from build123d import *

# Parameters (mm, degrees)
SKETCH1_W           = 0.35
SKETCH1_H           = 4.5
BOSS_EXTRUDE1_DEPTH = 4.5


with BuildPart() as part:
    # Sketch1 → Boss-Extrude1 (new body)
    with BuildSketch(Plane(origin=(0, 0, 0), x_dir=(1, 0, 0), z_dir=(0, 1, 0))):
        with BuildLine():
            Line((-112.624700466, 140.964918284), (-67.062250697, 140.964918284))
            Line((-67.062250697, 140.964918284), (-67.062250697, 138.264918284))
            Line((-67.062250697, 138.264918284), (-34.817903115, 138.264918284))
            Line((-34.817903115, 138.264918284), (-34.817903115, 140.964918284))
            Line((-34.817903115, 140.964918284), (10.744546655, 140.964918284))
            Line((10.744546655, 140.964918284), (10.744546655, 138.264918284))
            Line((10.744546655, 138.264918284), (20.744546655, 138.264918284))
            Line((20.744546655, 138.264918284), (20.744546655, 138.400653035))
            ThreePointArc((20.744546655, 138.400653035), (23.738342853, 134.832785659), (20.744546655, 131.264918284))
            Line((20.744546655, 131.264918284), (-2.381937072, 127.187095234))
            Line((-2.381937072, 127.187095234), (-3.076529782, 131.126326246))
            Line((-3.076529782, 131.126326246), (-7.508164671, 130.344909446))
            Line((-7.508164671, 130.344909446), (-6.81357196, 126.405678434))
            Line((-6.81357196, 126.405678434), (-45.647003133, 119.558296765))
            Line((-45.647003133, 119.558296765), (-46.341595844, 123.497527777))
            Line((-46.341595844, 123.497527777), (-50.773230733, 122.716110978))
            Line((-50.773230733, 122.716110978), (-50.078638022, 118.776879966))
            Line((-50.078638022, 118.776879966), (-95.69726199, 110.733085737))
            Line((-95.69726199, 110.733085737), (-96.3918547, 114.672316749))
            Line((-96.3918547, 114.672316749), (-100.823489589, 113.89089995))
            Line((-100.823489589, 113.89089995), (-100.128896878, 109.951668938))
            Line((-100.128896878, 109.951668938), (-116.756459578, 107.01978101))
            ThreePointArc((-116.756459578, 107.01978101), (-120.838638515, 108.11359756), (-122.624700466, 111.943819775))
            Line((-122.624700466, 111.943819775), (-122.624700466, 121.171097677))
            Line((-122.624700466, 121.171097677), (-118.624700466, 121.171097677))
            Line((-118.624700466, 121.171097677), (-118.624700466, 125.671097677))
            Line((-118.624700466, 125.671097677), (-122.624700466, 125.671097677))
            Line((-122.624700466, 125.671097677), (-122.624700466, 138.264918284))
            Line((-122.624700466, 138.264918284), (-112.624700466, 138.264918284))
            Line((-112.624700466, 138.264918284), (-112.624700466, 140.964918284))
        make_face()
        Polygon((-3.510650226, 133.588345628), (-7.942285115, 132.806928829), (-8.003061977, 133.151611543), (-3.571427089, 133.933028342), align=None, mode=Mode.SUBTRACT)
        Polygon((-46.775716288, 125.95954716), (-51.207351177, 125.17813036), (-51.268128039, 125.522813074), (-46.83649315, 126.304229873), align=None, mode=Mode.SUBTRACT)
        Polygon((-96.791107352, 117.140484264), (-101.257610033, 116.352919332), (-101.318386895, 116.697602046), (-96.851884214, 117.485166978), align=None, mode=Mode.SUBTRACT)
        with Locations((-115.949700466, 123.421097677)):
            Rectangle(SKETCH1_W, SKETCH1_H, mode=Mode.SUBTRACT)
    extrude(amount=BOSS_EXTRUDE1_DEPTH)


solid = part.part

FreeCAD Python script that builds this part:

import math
import FreeCAD as App
import Part
import Sketcher
from FreeCAD import Vector
Q = App.Units.Quantity

doc = App.newDocument("Part")
body = doc.addObject("PartDesign::Body", "Body")

sketch1 = body.newObject("Sketcher::SketchObject", "Sketch")
sketch1.AttachmentSupport = (doc.getObject("XZ_Plane"), [""])
sketch1.MapMode = "FlatFace"
sketch1.addGeometry(Part.LineSegment(Vector(-67.062251, -140.964918, 0), Vector(-112.6247, -140.964918, 0)), False)
sketch1.addGeometry(Part.LineSegment(Vector(-112.6247, -140.964918, 0), Vector(-112.6247, -138.264918, 0)), False)
sketch1.addGeometry(Part.LineSegment(Vector(-112.6247, -138.264918, 0), Vector(-122.6247, -138.264918, 0)), False)
sketch1.addGeometry(Part.LineSegment(Vector(-122.6247, -138.264918, 0), Vector(-122.6247, -125.671098, 0)), False)
sketch1.addGeometry(Part.LineSegment(Vector(-122.6247, -125.671098, 0), Vector(-118.6247, -125.671098, 0)), False)
sketch1.addGeometry(Part.LineSegment(Vector(-118.6247, -125.671098, 0), Vector(-118.6247, -121.171098, 0)), False)
sketch1.addGeometry(Part.LineSegment(Vector(-118.6247, -121.171098, 0), Vector(-122.6247, -121.171098, 0)), False)
sketch1.addGeometry(Part.LineSegment(Vector(-122.6247, -121.171098, 0), Vector(-122.6247, -111.94382, 0)), False)
sketch1.addGeometry(Part.ArcOfCircle(Part.Circle(Vector(-117.6247, -111.94382, 0), Vector(0, 0, 1), 5), math.radians(80), math.radians(180)), False)
sketch1.addGeometry(Part.LineSegment(Vector(-116.75646, -107.019781, 0), Vector(-100.128897, -109.951669, 0)), False)
sketch1.addGeometry(Part.LineSegment(Vector(-100.128897, -109.951669, 0), Vector(-100.82349, -113.8909, 0)), False)
sketch1.addGeometry(Part.LineSegment(Vector(-100.82349, -113.8909, 0), Vector(-96.391855, -114.672317, 0)), False)
sketch1.addGeometry(Part.LineSegment(Vector(-96.391855, -114.672317, 0), Vector(-95.697262, -110.733086, 0)), False)
sketch1.addGeometry(Part.LineSegment(Vector(-95.697262, -110.733086, 0), Vector(-50.078638, -118.77688, 0)), False)
sketch1.addGeometry(Part.LineSegment(Vector(-50.078638, -118.77688, 0), Vector(-50.773231, -122.716111, 0)), False)
sketch1.addGeometry(Part.LineSegment(Vector(-50.773231, -122.716111, 0), Vector(-46.341596, -123.497528, 0)), False)
sketch1.addGeometry(Part.LineSegment(Vector(-46.341596, -123.497528, 0), Vector(-45.647003, -119.558297, 0)), False)
sketch1.addGeometry(Part.LineSegment(Vector(-45.647003, -119.558297, 0), Vector(-6.813572, -126.405678, 0)), False)
sketch1.addGeometry(Part.LineSegment(Vector(-6.813572, -126.405678, 0), Vector(-7.508165, -130.344909, 0)), False)
sketch1.addGeometry(Part.LineSegment(Vector(-7.508165, -130.344909, 0), Vector(-3.07653, -131.126326, 0)), False)
sketch1.addGeometry(Part.LineSegment(Vector(-3.07653, -131.126326, 0), Vector(-2.381937, -127.187095, 0)), False)
sketch1.addGeometry(Part.LineSegment(Vector(-2.381937, -127.187095, 0), Vector(20.744547, -131.264918, 0)), False)
sketch1.addGeometry(Part.ArcOfCircle(Part.Circle(Vector(20.115435, -134.832786, 0), Vector(0, 0, 1), 3.622907), math.radians(-80), math.radians(80)), False)
sketch1.addGeometry(Part.LineSegment(Vector(20.744547, -138.400653, 0), Vector(20.744547, -138.264918, 0)), False)
sketch1.addGeometry(Part.LineSegment(Vector(20.744547, -138.264918, 0), Vector(10.744547, -138.264918, 0)), False)
sketch1.addGeometry(Part.LineSegment(Vector(10.744547, -138.264918, 0), Vector(10.744547, -140.964918, 0)), False)
sketch1.addGeometry(Part.LineSegment(Vector(10.744547, -140.964918, 0), Vector(-34.817903, -140.964918, 0)), False)
sketch1.addGeometry(Part.LineSegment(Vector(-34.817903, -140.964918, 0), Vector(-34.817903, -138.264918, 0)), False)
sketch1.addGeometry(Part.LineSegment(Vector(-34.817903, -138.264918, 0), Vector(-67.062251, -138.264918, 0)), False)
sketch1.addGeometry(Part.LineSegment(Vector(-67.062251, -138.264918, 0), Vector(-67.062251, -140.964918, 0)), False)
sketch1.addGeometry(Part.LineSegment(Vector(-96.791107, -117.140484, 0), Vector(-101.25761, -116.352919, 0)), False)
sketch1.addGeometry(Part.LineSegment(Vector(-101.25761, -116.352919, 0), Vector(-101.318387, -116.697602, 0)), False)
sketch1.addGeometry(Part.LineSegment(Vector(-101.318387, -116.697602, 0), Vector(-96.851884, -117.485167, 0)), False)
sketch1.addGeometry(Part.LineSegment(Vector(-96.851884, -117.485167, 0), Vector(-96.791107, -117.140484, 0)), False)
sketch1.addGeometry(Part.LineSegment(Vector(-116.1247, -121.171098, 0), Vector(-116.1247, -125.671098, 0)), False)
sketch1.addGeometry(Part.LineSegment(Vector(-116.1247, -125.671098, 0), Vector(-115.7747, -125.671098, 0)), False)
sketch1.addGeometry(Part.LineSegment(Vector(-115.7747, -125.671098, 0), Vector(-115.7747, -121.171098, 0)), False)
sketch1.addGeometry(Part.LineSegment(Vector(-115.7747, -121.171098, 0), Vector(-116.1247, -121.171098, 0)), False)
sketch1.addGeometry(Part.LineSegment(Vector(-46.775716, -125.959547, 0), Vector(-51.207351, -125.17813, 0)), False)
sketch1.addGeometry(Part.LineSegment(Vector(-51.207351, -125.17813, 0), Vector(-51.268128, -125.522813, 0)), False)
sketch1.addGeometry(Part.LineSegment(Vector(-51.268128, -125.522813, 0), Vector(-46.836493, -126.30423, 0)), False)
sketch1.addGeometry(Part.LineSegment(Vector(-46.836493, -126.30423, 0), Vector(-46.775716, -125.959547, 0)), False)
sketch1.addGeometry(Part.LineSegment(Vector(-3.51065, -133.588346, 0), Vector(-7.942285, -132.806929, 0)), False)
sketch1.addGeometry(Part.LineSegment(Vector(-7.942285, -132.806929, 0), Vector(-8.003062, -133.151612, 0)), False)
sketch1.addGeometry(Part.LineSegment(Vector(-8.003062, -133.151612, 0), Vector(-3.571427, -133.933028, 0)), False)
sketch1.addGeometry(Part.LineSegment(Vector(-3.571427, -133.933028, 0), Vector(-3.51065, -133.588346, 0)), False)
sketch1.addConstraint(Sketcher.Constraint("Coincident", 0, 2, 1, 1))
sketch1.addConstraint(Sketcher.Constraint("Coincident", 1, 2, 2, 1))
sketch1.addConstraint(Sketcher.Constraint("Coincident", 2, 2, 3, 1))
sketch1.addConstraint(Sketcher.Constraint("Coincident", 3, 2, 4, 1))
sketch1.addConstraint(Sketcher.Constraint("Coincident", 4, 2, 5, 1))
sketch1.addConstraint(Sketcher.Constraint("Coincident", 5, 2, 6, 1))
sketch1.addConstraint(Sketcher.Constraint("Coincident", 6, 2, 7, 1))
sketch1.addConstraint(Sketcher.Constraint("Tangent", 7, 2, 8, 2))
sketch1.addConstraint(Sketcher.Constraint("Tangent", 8, 1, 9, 1))
sketch1.addConstraint(Sketcher.Constraint("Coincident", 9, 2, 10, 1))
sketch1.addConstraint(Sketcher.Constraint("Coincident", 10, 2, 11, 1))
sketch1.addConstraint(Sketcher.Constraint("Coincident", 11, 2, 12, 1))
sketch1.addConstraint(Sketcher.Constraint("Coincident", 12, 2, 13, 1))
sketch1.addConstraint(Sketcher.Constraint("Coincident", 13, 2, 14, 1))
sketch1.addConstraint(Sketcher.Constraint("Coincident", 14, 2, 15, 1))
sketch1.addConstraint(Sketcher.Constraint("Coincident", 15, 2, 16, 1))
sketch1.addConstraint(Sketcher.Constraint("Coincident", 16, 2, 17, 1))
sketch1.addConstraint(Sketcher.Constraint("Coincident", 17, 2, 18, 1))
sketch1.addConstraint(Sketcher.Constraint("Coincident", 18, 2, 19, 1))
sketch1.addConstraint(Sketcher.Constraint("Coincident", 19, 2, 20, 1))
sketch1.addConstraint(Sketcher.Constraint("Coincident", 20, 2, 21, 1))
sketch1.addConstraint(Sketcher.Constraint("Tangent", 21, 2, 22, 2))
sketch1.addConstraint(Sketcher.Constraint("Coincident", 22, 1, 23, 1))
sketch1.addConstraint(Sketcher.Constraint("Coincident", 23, 2, 24, 1))
sketch1.addConstraint(Sketcher.Constraint("Coincident", 24, 2, 25, 1))
sketch1.addConstraint(Sketcher.Constraint("Coincident", 25, 2, 26, 1))
sketch1.addConstraint(Sketcher.Constraint("Coincident", 26, 2, 27, 1))
sketch1.addConstraint(Sketcher.Constraint("Coincident", 27, 2, 28, 1))
sketch1.addConstraint(Sketcher.Constraint("Coincident", 28, 2, 29, 1))
sketch1.addConstraint(Sketcher.Constraint("Coincident", 29, 2, 0, 1))
sketch1.addConstraint(Sketcher.Constraint("Coincident", 30, 2, 31, 1))
sketch1.addConstraint(Sketcher.Constraint("Coincident", 31, 2, 32, 1))
sketch1.addConstraint(Sketcher.Constraint("Coincident", 32, 2, 33, 1))
sketch1.addConstraint(Sketcher.Constraint("Coincident", 33, 2, 30, 1))
sketch1.addConstraint(Sketcher.Constraint("Coincident", 34, 2, 35, 1))
sketch1.addConstraint(Sketcher.Constraint("Coincident", 35, 2, 36, 1))
sketch1.addConstraint(Sketcher.Constraint("Coincident", 36, 2, 37, 1))
sketch1.addConstraint(Sketcher.Constraint("Coincident", 37, 2, 34, 1))
sketch1.addConstraint(Sketcher.Constraint("Coincident", 38, 2, 39, 1))
sketch1.addConstraint(Sketcher.Constraint("Coincident", 39, 2, 40, 1))
sketch1.addConstraint(Sketcher.Constraint("Coincident", 40, 2, 41, 1))
sketch1.addConstraint(Sketcher.Constraint("Coincident", 41, 2, 38, 1))
sketch1.addConstraint(Sketcher.Constraint("Coincident", 42, 2, 43, 1))
sketch1.addConstraint(Sketcher.Constraint("Coincident", 43, 2, 44, 1))
sketch1.addConstraint(Sketcher.Constraint("Coincident", 44, 2, 45, 1))
sketch1.addConstraint(Sketcher.Constraint("Coincident", 45, 2, 42, 1))
sketch1.addConstraint(Sketcher.Constraint("Horizontal", 0))
sketch1.addConstraint(Sketcher.Constraint("Vertical", 1))
sketch1.addConstraint(Sketcher.Constraint("Horizontal", 2))
sketch1.addConstraint(Sketcher.Constraint("Vertical", 3))
sketch1.addConstraint(Sketcher.Constraint("Horizontal", 4))
sketch1.addConstraint(Sketcher.Constraint("Vertical", 5))
sketch1.addConstraint(Sketcher.Constraint("Horizontal", 6))
sketch1.addConstraint(Sketcher.Constraint("Vertical", 7))
sketch1.addConstraint(Sketcher.Constraint("Vertical", 23))
sketch1.addConstraint(Sketcher.Constraint("Horizontal", 24))
sketch1.addConstraint(Sketcher.Constraint("Vertical", 25))
sketch1.addConstraint(Sketcher.Constraint("Horizontal", 26))
sketch1.addConstraint(Sketcher.Constraint("Vertical", 27))
sketch1.addConstraint(Sketcher.Constraint("Horizontal", 28))
sketch1.addConstraint(Sketcher.Constraint("Vertical", 29))
sketch1.addConstraint(Sketcher.Constraint("Vertical", 34))
sketch1.addConstraint(Sketcher.Constraint("Horizontal", 35))
sketch1.addConstraint(Sketcher.Constraint("Vertical", 36))
sketch1.addConstraint(Sketcher.Constraint("Horizontal", 37))
sketch1.addConstraint(Sketcher.Constraint("Perpendicular", 9, 10))
sketch1.addConstraint(Sketcher.Constraint("Perpendicular", 10, 11))
sketch1.addConstraint(Sketcher.Constraint("Perpendicular", 11, 12))
sketch1.addConstraint(Sketcher.Constraint("Perpendicular", 12, 13))
sketch1.addConstraint(Sketcher.Constraint("Perpendicular", 13, 14))
sketch1.addConstraint(Sketcher.Constraint("Perpendicular", 14, 15))
sketch1.addConstraint(Sketcher.Constraint("Perpendicular", 15, 16))
sketch1.addConstraint(Sketcher.Constraint("Perpendicular", 16, 17))
sketch1.addConstraint(Sketcher.Constraint("Perpendicular", 17, 18))
sketch1.addConstraint(Sketcher.Constraint("Perpendicular", 18, 19))
sketch1.addConstraint(Sketcher.Constraint("Perpendicular", 19, 20))
sketch1.addConstraint(Sketcher.Constraint("Perpendicular", 20, 21))
sketch1.addConstraint(Sketcher.Constraint("Parallel", 21, 30))
sketch1.addConstraint(Sketcher.Constraint("Perpendicular", 30, 31))
sketch1.addConstraint(Sketcher.Constraint("Perpendicular", 31, 32))
sketch1.addConstraint(Sketcher.Constraint("Perpendicular", 32, 33))
sketch1.addConstraint(Sketcher.Constraint("Perpendicular", 33, 38))
sketch1.addConstraint(Sketcher.Constraint("Perpendicular", 38, 39))
sketch1.addConstraint(Sketcher.Constraint("Perpendicular", 39, 40))
sketch1.addConstraint(Sketcher.Constraint("Perpendicular", 40, 41))
sketch1.addConstraint(Sketcher.Constraint("Perpendicular", 41, 42))
sketch1.addConstraint(Sketcher.Constraint("Perpendicular", 42, 43))
sketch1.addConstraint(Sketcher.Constraint("Perpendicular", 43, 44))
sketch1.addConstraint(Sketcher.Constraint("Perpendicular", 44, 45))
sketch1.addConstraint(Sketcher.Constraint("Horizontal", 2, 2, 23, 2))
sketch1.addConstraint(Sketcher.Constraint("Horizontal", 0, 2, 25, 2))
sketch1.addConstraint(Sketcher.Constraint("Horizontal", 24, 2, 27, 2))
sketch1.addConstraint(Sketcher.Constraint("Horizontal", 4, 2, 34, 2))
sketch1.addConstraint(Sketcher.Constraint("Horizontal", 6, 2, 36, 2))
sketch1.addConstraint(Sketcher.Constraint("Vertical", 3, 2, 6, 2))
sketch1.addConstraint(Sketcher.Constraint("Vertical", 21, 2, 22, 1))
sketch1.addConstraint(Sketcher.Constraint("Equal", 2, 24))
sketch1.addConstraint(Sketcher.Constraint("Equal", 0, 26))
sketch1.addConstraint(Sketcher.Constraint("Equal", 10, 12))
sketch1.addConstraint(Sketcher.Constraint("Equal", 12, 14))
sketch1.addConstraint(Sketcher.Constraint("Equal", 11, 15))
sketch1.addConstraint(Sketcher.Constraint("Equal", 14, 16))
sketch1.addConstraint(Sketcher.Constraint("Equal", 16, 18))
sketch1.addConstraint(Sketcher.Constraint("Equal", 15, 19))
sketch1.addConstraint(Sketcher.Constraint("Equal", 18, 20))
sketch1.addConstraint(Sketcher.Constraint("Equal", 19, 38))
sketch1.addConstraint(Sketcher.Constraint("Equal", 33, 39))
sketch1.addConstraint(Sketcher.Constraint("Equal", 40, 42))
sketch1.addConstraint(Sketcher.Constraint("Equal", 41, 43))
sketch1.addConstraint(Sketcher.Constraint("Radius", 8, Q("5 mm")))
sketch1.addConstraint(Sketcher.Constraint("DistanceX", 2, 2, 2, 1, Q("10 mm")))
sketch1.addConstraint(Sketcher.Constraint("DistanceX", 4, 1, 4, 2, Q("4 mm")))
sketch1.addConstraint(Sketcher.Constraint("Angle", 9, Q("-10 deg")))
sketch1.addConstraint(Sketcher.Constraint("Distance", 10, Q("4 mm")))
sketch1.addConstraint(Sketcher.Constraint("DistanceY", 1, 1, 1, 2, Q("2.7 mm")))
sketch1.addConstraint(Sketcher.Constraint("DistanceY", 5, 1, 5, 2, Q("4.5 mm")))
sketch1.addConstraint(Sketcher.Constraint("DistanceY", 23, 2, 21, 2, Q("7 mm")))
sketch1.addConstraint(Sketcher.Constraint("Distance", 11, Q("4.5 mm")))
sketch1.addConstraint(Sketcher.Constraint("DistanceX", 35, 1, 35, 2, Q("0.35 mm")))
sketch1.addConstraint(Sketcher.Constraint("DistanceX", 4, 2, 34, 2, Q("2.5 mm")))
sketch1.addConstraint(Sketcher.Constraint("Distance", 31, Q("0.35 mm")))
sketch1.addConstraint(Sketcher.Constraint("Radius", 22, Q("3.622907 mm")))
sketch1.addConstraint(Sketcher.Constraint("Distance", 17, Q("39.432499 mm")))
sketch1.addConstraint(Sketcher.Constraint("DistanceX", 0, 2, 0, 1, Q("45.56245 mm")))
sketch1.addConstraint(Sketcher.Constraint("DistanceY", 3, 1, 3, 2, Q("12.593821 mm")))
sketch1.addConstraint(Sketcher.Constraint("DistanceX", 8, 3, -1, 1, Q("117.6247 mm")))
sketch1.addConstraint(Sketcher.Constraint("DistanceY", 10, 2, -1, 1, Q("113.8909 mm")))
sketch1.addConstraint(Sketcher.Constraint("DistanceY", 0, 2, 8, 3, Q("29.021099 mm")))
sketch1.addConstraint(Sketcher.Constraint("DistanceX", 18, 2, 22, 3, Q("27.6236 mm")))
sketch1.addConstraint(Sketcher.Constraint("DistanceY", 30, 2, 8, 3, Q("4.4091 mm")))
sketch1.addConstraint(Sketcher.Constraint("DistanceX", 28, 2, 38, 2, Q("15.8549 mm")))
sketch1.addConstraint(Sketcher.Constraint("Distance", 9, Q("16.88407 mm")))
sketch1.addConstraint(Sketcher.Constraint("DistanceX", 30, 2, -1, 1, Q("101.25761 mm")))
sketch1.addConstraint(Sketcher.Constraint("DistanceY", 38, 2, -1, 1, Q("125.17813 mm")))
sketch1.addConstraint(Sketcher.Constraint("DistanceY", 42, 2, -1, 1, Q("132.806929 mm")))
sketch1.addConstraint(Sketcher.Constraint("DistanceX", 43, 2, -1, 1, Q("8.003062 mm")))
sketch1.addConstraint(Sketcher.Constraint("DistanceX", 32, 2, 11, 2, Q("0.46003 mm")))
pad1 = body.newObject("PartDesign::Pad", "Pad")
pad1.Profile = sketch1
pad1.Length = 4.5
pad1.Reversed = True

doc.recompute()
